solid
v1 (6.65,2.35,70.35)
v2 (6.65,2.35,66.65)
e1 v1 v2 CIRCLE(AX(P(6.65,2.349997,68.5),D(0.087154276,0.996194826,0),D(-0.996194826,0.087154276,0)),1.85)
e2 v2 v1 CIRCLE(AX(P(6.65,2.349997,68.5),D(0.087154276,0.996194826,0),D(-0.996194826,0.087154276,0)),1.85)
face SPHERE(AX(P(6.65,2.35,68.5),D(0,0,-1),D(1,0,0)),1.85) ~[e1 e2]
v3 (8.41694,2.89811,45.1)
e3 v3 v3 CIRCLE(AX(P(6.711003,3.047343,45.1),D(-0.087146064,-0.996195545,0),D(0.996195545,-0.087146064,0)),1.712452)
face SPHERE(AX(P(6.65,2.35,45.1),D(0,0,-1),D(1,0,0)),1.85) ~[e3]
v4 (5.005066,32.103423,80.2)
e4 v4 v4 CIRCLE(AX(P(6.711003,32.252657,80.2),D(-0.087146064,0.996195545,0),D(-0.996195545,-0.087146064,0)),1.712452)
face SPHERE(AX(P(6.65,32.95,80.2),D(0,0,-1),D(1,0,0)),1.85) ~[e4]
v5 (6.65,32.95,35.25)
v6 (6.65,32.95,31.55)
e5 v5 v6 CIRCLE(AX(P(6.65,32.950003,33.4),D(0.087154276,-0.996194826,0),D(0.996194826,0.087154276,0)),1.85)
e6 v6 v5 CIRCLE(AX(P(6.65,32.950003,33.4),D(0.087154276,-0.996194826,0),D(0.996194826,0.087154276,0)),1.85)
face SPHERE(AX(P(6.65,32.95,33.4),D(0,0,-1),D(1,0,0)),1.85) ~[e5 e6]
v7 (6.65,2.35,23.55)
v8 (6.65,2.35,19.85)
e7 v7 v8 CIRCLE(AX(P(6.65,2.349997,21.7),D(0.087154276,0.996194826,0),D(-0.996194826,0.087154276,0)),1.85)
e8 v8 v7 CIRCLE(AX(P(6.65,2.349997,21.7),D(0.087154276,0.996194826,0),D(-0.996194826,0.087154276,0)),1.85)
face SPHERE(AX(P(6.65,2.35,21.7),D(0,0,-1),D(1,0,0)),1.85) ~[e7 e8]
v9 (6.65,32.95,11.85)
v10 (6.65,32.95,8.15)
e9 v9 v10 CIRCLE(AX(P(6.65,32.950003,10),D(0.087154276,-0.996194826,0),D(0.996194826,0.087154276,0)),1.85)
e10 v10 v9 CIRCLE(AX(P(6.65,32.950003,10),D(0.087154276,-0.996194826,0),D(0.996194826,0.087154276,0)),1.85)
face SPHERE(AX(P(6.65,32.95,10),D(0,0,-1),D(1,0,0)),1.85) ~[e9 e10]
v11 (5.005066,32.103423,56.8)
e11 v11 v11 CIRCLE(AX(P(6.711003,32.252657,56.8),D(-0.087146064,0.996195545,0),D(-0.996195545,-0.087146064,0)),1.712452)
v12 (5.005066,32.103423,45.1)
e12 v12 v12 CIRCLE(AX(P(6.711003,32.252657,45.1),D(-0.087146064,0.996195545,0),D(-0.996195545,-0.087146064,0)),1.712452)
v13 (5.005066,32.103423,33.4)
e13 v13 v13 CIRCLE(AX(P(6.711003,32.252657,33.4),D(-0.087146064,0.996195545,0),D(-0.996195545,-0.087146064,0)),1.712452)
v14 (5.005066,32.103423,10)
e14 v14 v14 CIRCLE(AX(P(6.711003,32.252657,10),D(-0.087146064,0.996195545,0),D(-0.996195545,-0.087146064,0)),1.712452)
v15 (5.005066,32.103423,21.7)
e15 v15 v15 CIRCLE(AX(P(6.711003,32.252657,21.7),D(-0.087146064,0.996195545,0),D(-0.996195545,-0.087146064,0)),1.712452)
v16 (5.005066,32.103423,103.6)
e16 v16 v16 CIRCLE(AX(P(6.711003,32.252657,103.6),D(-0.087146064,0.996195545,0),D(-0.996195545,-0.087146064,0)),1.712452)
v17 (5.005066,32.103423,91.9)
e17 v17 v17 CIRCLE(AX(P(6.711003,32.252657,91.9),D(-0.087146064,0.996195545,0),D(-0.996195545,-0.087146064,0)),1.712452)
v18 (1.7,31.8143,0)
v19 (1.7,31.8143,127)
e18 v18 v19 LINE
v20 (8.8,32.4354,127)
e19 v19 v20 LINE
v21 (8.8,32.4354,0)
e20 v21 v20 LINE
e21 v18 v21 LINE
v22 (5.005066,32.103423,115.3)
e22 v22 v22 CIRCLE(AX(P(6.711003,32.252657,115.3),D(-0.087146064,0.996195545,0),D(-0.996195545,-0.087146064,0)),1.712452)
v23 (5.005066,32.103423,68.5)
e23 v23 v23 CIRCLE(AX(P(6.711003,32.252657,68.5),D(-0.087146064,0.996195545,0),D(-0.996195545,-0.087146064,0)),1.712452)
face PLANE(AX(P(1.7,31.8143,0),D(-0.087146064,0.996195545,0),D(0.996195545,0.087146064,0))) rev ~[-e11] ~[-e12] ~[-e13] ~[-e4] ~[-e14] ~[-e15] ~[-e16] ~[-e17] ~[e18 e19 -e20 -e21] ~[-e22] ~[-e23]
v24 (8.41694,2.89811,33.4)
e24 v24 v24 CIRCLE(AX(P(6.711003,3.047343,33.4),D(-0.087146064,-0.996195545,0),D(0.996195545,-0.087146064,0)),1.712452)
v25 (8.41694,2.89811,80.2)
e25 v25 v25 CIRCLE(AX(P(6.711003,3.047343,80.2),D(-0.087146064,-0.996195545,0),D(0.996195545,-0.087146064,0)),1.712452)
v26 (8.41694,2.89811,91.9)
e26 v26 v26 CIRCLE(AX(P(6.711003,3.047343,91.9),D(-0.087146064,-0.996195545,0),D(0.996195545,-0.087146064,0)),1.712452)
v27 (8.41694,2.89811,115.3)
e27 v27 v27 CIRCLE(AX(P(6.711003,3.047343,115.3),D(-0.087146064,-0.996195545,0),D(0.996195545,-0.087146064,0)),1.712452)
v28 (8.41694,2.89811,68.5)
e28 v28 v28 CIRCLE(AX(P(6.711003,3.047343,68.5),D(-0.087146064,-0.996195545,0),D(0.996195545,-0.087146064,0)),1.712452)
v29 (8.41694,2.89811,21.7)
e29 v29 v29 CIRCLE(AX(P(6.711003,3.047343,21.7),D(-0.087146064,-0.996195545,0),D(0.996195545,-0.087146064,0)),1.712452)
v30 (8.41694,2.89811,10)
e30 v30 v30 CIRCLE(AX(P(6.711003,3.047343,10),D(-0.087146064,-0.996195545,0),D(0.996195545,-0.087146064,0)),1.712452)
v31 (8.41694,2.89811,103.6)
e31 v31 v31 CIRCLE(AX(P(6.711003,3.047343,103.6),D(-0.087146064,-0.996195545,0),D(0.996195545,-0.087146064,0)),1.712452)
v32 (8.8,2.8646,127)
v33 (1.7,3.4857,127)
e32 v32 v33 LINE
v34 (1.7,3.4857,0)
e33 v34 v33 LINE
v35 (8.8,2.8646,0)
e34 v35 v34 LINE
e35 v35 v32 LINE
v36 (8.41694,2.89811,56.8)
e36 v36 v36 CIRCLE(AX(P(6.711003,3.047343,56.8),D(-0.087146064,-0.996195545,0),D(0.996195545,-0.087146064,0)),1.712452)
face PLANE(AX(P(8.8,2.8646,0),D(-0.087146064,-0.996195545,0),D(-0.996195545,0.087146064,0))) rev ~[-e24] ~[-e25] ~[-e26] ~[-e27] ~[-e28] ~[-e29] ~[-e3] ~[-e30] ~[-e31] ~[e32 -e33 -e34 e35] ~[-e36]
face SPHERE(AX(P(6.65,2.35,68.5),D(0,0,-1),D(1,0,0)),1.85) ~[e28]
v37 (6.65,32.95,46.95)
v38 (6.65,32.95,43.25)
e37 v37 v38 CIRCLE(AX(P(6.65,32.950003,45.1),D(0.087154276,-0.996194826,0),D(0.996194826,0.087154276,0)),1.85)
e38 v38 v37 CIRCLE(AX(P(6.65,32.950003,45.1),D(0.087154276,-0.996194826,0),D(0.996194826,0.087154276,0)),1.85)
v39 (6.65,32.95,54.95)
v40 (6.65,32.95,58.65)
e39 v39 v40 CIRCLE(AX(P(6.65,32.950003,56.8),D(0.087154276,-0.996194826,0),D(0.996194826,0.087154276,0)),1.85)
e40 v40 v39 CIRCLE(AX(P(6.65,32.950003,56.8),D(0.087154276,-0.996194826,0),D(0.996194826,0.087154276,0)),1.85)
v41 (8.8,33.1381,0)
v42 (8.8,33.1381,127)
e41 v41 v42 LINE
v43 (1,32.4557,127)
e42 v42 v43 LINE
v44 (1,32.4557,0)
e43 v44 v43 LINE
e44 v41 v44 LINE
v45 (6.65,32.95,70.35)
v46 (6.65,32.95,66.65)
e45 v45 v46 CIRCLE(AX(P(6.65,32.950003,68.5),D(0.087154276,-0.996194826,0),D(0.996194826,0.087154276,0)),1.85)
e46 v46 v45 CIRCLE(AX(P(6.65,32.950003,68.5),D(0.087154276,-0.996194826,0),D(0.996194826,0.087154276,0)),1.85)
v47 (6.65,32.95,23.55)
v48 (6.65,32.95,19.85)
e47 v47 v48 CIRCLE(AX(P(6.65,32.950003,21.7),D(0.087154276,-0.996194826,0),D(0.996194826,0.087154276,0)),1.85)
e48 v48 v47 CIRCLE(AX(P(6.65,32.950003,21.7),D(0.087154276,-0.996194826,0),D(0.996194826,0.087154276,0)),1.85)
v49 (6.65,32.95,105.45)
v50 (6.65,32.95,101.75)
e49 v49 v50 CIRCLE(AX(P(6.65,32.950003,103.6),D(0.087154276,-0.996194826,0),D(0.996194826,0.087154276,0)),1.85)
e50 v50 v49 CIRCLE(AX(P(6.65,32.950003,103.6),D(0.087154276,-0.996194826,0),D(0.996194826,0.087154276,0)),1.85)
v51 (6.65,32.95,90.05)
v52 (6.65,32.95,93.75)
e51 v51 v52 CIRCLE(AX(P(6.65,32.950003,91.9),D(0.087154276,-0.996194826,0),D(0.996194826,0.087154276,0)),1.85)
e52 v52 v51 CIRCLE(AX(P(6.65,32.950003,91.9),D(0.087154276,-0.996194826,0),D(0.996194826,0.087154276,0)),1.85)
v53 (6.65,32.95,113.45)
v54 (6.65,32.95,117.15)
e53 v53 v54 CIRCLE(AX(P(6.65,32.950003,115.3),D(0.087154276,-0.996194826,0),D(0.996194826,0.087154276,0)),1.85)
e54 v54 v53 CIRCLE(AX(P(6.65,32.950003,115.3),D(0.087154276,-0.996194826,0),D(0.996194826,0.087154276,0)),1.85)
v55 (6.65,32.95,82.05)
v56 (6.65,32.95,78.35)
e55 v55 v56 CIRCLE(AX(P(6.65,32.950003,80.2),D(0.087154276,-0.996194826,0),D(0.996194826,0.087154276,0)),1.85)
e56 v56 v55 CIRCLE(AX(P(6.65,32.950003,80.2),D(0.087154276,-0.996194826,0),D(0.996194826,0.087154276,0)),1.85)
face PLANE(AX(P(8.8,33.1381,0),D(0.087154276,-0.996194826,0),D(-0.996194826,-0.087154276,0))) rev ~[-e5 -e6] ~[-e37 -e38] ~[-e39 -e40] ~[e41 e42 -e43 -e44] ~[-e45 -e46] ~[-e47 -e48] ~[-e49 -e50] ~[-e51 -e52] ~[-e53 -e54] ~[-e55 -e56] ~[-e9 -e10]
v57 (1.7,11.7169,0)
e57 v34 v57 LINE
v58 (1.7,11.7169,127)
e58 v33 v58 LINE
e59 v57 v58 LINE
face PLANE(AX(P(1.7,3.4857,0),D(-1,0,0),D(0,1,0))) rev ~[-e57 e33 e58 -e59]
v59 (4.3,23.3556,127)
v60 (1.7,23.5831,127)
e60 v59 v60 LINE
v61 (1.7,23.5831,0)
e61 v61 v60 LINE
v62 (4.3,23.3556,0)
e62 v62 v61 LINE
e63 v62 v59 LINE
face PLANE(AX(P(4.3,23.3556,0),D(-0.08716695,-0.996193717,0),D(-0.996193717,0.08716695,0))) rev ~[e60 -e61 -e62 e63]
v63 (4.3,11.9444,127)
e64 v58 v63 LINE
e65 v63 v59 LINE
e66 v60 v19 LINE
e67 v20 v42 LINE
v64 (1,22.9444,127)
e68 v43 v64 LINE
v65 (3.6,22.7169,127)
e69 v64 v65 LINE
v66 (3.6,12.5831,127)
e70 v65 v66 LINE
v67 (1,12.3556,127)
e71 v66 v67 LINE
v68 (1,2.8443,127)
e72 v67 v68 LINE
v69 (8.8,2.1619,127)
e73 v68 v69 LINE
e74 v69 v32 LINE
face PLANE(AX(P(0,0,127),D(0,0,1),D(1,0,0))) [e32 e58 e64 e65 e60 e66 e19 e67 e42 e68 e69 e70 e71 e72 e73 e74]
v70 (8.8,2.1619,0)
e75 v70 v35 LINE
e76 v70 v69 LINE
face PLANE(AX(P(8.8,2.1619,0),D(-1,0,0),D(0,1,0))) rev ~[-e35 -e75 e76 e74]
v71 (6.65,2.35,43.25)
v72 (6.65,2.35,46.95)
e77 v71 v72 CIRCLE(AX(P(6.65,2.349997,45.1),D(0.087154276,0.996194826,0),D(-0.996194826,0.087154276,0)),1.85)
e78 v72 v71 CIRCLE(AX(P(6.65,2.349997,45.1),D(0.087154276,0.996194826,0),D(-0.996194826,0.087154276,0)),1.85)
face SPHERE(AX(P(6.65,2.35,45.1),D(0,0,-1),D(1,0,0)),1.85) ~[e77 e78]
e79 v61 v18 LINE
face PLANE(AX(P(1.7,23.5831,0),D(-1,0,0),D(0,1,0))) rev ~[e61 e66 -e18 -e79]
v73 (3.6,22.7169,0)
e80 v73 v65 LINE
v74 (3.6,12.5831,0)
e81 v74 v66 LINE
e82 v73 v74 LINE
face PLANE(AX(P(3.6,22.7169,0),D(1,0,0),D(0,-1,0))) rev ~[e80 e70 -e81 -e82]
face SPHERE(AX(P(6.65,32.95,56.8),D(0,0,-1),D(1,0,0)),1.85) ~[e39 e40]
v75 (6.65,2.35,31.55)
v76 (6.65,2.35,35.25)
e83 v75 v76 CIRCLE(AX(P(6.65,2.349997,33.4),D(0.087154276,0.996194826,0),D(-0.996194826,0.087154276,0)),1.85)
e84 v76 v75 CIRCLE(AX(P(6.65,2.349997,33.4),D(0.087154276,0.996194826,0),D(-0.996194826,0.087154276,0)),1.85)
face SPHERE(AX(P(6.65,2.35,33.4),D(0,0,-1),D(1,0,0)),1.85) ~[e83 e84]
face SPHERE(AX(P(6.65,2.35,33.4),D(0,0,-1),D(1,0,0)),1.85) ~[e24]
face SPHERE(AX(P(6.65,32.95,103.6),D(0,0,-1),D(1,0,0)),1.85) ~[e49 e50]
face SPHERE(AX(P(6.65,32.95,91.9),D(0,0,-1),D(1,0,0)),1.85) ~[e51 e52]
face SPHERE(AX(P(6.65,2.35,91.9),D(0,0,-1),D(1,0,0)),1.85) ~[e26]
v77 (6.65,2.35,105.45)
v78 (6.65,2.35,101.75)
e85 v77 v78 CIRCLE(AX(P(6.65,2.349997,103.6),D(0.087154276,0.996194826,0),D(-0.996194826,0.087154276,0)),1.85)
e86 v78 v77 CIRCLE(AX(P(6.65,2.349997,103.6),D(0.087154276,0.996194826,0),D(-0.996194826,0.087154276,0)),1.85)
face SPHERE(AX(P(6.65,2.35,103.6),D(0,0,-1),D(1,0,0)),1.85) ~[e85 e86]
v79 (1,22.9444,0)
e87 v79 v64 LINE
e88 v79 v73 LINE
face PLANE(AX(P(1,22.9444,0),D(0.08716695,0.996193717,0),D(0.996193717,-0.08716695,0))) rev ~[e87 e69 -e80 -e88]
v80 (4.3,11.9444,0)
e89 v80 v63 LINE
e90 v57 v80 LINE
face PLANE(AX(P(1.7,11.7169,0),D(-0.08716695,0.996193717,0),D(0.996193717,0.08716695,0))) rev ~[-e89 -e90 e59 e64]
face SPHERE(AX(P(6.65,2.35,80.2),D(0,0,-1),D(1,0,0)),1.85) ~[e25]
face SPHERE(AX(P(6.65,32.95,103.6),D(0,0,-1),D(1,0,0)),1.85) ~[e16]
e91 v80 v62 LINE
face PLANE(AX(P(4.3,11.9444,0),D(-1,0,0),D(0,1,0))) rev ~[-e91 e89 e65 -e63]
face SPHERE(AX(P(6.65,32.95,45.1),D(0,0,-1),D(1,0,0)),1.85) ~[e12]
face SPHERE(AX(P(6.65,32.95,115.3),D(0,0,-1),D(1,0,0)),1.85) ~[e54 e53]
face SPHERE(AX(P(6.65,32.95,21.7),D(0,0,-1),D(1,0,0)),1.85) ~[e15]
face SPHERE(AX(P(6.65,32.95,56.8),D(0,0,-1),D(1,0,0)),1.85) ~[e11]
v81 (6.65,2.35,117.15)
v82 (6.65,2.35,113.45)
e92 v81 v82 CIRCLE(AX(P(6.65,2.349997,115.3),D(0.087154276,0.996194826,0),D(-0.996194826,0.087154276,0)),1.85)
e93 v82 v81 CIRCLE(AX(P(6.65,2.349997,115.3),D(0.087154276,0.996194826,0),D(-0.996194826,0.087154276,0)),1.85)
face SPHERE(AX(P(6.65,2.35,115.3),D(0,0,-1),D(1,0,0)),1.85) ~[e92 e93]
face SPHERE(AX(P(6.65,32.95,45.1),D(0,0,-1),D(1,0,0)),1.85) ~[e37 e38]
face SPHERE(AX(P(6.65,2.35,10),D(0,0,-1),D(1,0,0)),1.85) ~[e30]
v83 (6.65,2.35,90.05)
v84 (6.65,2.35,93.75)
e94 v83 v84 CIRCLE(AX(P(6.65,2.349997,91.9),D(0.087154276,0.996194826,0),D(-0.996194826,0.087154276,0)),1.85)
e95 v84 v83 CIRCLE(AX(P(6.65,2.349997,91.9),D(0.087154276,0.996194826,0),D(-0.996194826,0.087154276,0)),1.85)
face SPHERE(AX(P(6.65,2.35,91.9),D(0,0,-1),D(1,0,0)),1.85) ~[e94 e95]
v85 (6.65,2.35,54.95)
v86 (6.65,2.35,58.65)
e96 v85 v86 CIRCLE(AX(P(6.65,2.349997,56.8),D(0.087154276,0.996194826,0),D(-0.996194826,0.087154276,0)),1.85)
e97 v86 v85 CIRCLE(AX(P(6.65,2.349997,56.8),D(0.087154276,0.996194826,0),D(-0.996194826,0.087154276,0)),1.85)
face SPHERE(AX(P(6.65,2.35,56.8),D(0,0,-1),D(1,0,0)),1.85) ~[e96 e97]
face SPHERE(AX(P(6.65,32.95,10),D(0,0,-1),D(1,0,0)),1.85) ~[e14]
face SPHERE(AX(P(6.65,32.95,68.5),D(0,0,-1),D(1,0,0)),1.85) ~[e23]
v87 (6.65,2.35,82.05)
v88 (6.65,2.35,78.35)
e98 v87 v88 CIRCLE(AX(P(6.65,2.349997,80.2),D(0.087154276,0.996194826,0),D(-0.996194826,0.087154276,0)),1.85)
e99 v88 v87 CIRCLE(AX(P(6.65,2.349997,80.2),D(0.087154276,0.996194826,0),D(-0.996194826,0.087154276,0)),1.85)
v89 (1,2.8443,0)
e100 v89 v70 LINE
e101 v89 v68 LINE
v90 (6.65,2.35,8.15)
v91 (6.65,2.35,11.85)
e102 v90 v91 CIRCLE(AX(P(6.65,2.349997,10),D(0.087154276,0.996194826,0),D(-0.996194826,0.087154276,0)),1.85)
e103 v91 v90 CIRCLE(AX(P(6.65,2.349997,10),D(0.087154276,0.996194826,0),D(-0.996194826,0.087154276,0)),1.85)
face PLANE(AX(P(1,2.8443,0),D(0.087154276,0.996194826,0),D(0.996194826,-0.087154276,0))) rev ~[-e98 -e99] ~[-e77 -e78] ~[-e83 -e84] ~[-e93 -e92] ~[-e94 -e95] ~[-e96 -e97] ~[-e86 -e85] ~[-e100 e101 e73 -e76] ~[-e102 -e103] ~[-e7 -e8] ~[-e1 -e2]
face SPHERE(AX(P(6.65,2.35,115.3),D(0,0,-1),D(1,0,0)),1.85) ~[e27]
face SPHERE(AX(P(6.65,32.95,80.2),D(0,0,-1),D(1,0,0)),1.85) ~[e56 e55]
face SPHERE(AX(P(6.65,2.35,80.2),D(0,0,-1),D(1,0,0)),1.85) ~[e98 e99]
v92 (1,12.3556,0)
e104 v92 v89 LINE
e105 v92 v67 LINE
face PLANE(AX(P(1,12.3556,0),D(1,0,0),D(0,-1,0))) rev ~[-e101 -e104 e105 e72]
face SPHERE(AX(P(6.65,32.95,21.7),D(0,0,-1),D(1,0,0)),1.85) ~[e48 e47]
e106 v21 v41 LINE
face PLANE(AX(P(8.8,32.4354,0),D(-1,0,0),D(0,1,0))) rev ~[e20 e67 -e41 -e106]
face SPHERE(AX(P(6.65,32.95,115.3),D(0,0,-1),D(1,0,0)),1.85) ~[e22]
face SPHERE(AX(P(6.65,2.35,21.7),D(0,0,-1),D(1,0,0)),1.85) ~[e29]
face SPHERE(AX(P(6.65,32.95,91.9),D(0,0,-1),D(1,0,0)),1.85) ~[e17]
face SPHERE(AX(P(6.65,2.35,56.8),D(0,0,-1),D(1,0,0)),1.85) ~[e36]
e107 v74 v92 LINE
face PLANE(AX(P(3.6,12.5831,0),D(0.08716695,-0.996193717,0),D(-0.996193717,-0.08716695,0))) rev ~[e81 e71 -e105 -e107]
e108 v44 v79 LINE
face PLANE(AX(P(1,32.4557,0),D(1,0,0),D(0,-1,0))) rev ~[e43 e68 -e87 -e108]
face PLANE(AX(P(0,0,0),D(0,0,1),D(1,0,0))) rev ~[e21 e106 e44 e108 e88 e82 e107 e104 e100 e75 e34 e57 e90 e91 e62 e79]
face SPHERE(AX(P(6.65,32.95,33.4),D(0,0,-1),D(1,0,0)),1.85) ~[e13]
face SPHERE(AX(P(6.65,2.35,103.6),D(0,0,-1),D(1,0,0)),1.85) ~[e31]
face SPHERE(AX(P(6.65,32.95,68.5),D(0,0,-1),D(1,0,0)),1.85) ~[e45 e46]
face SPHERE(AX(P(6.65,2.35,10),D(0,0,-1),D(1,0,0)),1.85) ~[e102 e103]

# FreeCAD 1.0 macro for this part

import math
import FreeCAD as App
import Part
import Sketcher

V = App.Vector
Q = App.Units.Quantity


def add_polygon(sketch, points):
    """Adds a closed chain of lines whose ends are joined by coincident constraints."""
    first, n = sketch.GeometryCount, len(points)
    for a, b in zip(points, points[1:] + points[:1]):
        sketch.addGeometry(Part.LineSegment(App.Vector(*a, 0), App.Vector(*b, 0)), False)
    for i in range(n):
        sketch.addConstraint(Sketcher.Constraint("Coincident", first + i, 2, first + (i + 1) % n, 1))

doc = App.newDocument("Part")
params = doc.addObject("Spreadsheet::Sheet", "Params")
for row, (alias, value) in enumerate([
    ("pad1_length", "127 mm"),
    ("sketch2_radius", "1.85 mm"),
    ("revolution_angle", "360 deg"),
    ("linearpattern_pitch", "11.7 mm"),
    ("sketch3_radius", "1.85 mm"),
    ("revolution2_angle", "360 deg"),
    ("linearpattern2_pitch", "11.7 mm"),
], start=1):
    params.set(f"A{row}", alias)
    params.set(f"B{row}", "=" + value)
    params.setAlias(f"B{row}", alias)

body = doc.addObject("PartDesign::Body", "Body")

sketch1 = body.newObject("Sketcher::SketchObject", "Sketch")
sketch1.AttachmentSupport = (doc.getObject("XY_Plane"), [""])
sketch1.MapMode = "FlatFace"
add_polygon(sketch1, [(1, 12.4), (1, 2.8), (8.8, 2.2), (8.8, 2.9), (1.7, 3.5), (1.7, 11.7), (4.3, 11.9), (4.3, 23.4), (1.7, 23.6), (1.7, 31.8), (8.8, 32.4), (8.8, 33.1), (1, 32.5), (1, 22.9), (3.6, 22.7), (3.6, 12.6)])
sketch1.addConstraint([
    Sketcher.Constraint("Vertical", 0),
    Sketcher.Constraint("Vertical", 2),
    Sketcher.Constraint("Vertical", 4),
    Sketcher.Constraint("Vertical", 6),
    Sketcher.Constraint("Vertical", 8),
    Sketcher.Constraint("Vertical", 10),
    Sketcher.Constraint("Vertical", 12),
    Sketcher.Constraint("Vertical", 14),
    Sketcher.Constraint("Parallel", 1, 3),
    Sketcher.Constraint("Parallel", 3, 7),
    Sketcher.Constraint("Parallel", 5, 9),
    Sketcher.Constraint("Parallel", 9, 11),
    Sketcher.Constraint("Parallel", 7, 13),
    Sketcher.Constraint("Parallel", 11, 15),
    Sketcher.Constraint("Vertical", 4, 2, 7, 2),
    Sketcher.Constraint("Vertical", 2, 2, 9, 2),
    Sketcher.Constraint("Vertical", 0, 2, 11, 2),
    Sketcher.Constraint("Equal", 4, 8),
    Sketcher.Constraint("Equal", 2, 10),
    Sketcher.Constraint("Equal", 0, 12),
    Sketcher.Constraint("Equal", 5, 7),
    Sketcher.Constraint("Equal", 7, 13),
    Sketcher.Constraint("Angle", 1, Q("-5 deg")),
    Sketcher.Constraint("DistanceX", -1, 1, 0, 2, 1.0),
    Sketcher.Constraint("DistanceX", -1, 1, 1, 2, 8.8),
    Sketcher.Constraint("DistanceX", -1, 1, 3, 2, 1.7),
    Sketcher.Constraint("DistanceX", -1, 1, 5, 2, 4.3),
    Sketcher.Constraint("DistanceY", 0, 2, 5, 2, 9.1),
    Sketcher.Constraint("DistanceY", 3, 2, 6, 2, 19.87),
    Sketcher.Constraint("DistanceY", 12, 2, 8, 2, 8.87),
    Sketcher.Constraint("DistanceY", 0, 2, 0, 1, 9.5113),
    Sketcher.Constraint("DistanceY", -1, 1, 1, 2, 2.162),
])
pad1 = body.newObject("PartDesign::Pad", "Pad")
pad1.Profile = sketch1
pad1.setExpression("Length", "Params.pad1_length")

sketch2 = body.newObject("Sketcher::SketchObject", "Sketch001")
sketch2.AttachmentSupport = (doc.getObject("XZ_Plane"), [""])
sketch2.MapMode = "FlatFace"
sketch2.AttachmentOffset = App.Placement(V(0, 0, -2.35), App.Rotation())
sketch2.addGeometry([
    Part.LineSegment(V(6.7, 8.2, 0), V(6.7, 11.8, 0)),
    Part.ArcOfCircle(Part.Circle(V(6.7, 10, 0), V(0, 0, 1), 1.8), math.radians(-90), math.radians(90)),
], False)
sketch2.addGeometry(Part.LineSegment(V(6.7, 8.2, 0), V(6.7, 11.8, 0)), True)
sketch2.addConstraint([
    Sketcher.Constraint("Coincident", 0, 1, 1, 1),
    Sketcher.Constraint("Coincident", 1, 2, 0, 2),
    Sketcher.Constraint("Vertical", 0),
    Sketcher.Constraint("Vertical", 2),
    Sketcher.Constraint("Coincident", 2, 1, 0, 1),
    Sketcher.Constraint("Vertical", 1, 3, 0, 1),
    Sketcher.Constraint("Equal", 0, 2),
    Sketcher.Constraint("Radius", 1, 1.85),
    Sketcher.Constraint("DistanceY", -1, 1, 1, 3, 10.0),
    Sketcher.Constraint("DistanceX", -1, 1, 1, 3, 6.65),
])
sketch2.setExpression("Constraints[7]", "Params.sketch2_radius")
revolution = body.newObject("PartDesign::Revolution", "Revolution")
revolution.Profile = sketch2
revolution.ReferenceAxis = (sketch2, ["Axis0"])
revolution.setExpression("Angle", "Params.revolution_angle")
doc.recompute()

linearpattern = body.newObject("PartDesign::LinearPattern", "LinearPattern")
linearpattern.Originals = [revolution]
linearpattern.Direction = (doc.getObject("Z_Axis"), [""])
linearpattern.Mode = "offset"
linearpattern.setExpression("Offset", "Params.linearpattern_pitch")
linearpattern.Occurrences = 10
body.Tip = linearpattern

sketch3 = body.newObject("Sketcher::SketchObject", "Sketch002")
sketch3.AttachmentSupport = (doc.getObject("XZ_Plane"), [""])
sketch3.MapMode = "FlatFace"
sketch3.AttachmentOffset = App.Placement(V(0, 0, -32.95), App.Rotation())
sketch3.addGeometry([
    Part.LineSegment(V(6.7, 8.2, 0), V(6.7, 11.8, 0)),
    Part.ArcOfCircle(Part.Circle(V(6.7, 10, 0), V(0, 0, 1), 1.8), math.radians(-90), math.radians(90)),
], False)
sketch3.addGeometry(Part.LineSegment(V(6.7, 8.2, 0), V(6.7, 11.8, 0)), True)
sketch3.addConstraint([
    Sketcher.Constraint("Coincident", 0, 1, 1, 1),
    Sketcher.Constraint("Coincident", 1, 2, 0, 2),
    Sketcher.Constraint("Vertical", 0),
    Sketcher.Constraint("Vertical", 2),
    Sketcher.Constraint("Coincident", 2, 1, 0, 1),
    Sketcher.Constraint("Vertical", 1, 3, 0, 1),
    Sketcher.Constraint("Equal", 0, 2),
    Sketcher.Constraint("Radius", 1, 1.85),
    Sketcher.Constraint("DistanceY", -1, 1, 1, 3, 10.0),
    Sketcher.Constraint("DistanceX", -1, 1, 1, 3, 6.65),
])
sketch3.setExpression("Constraints[7]", "Params.sketch3_radius")
revolution2 = body.newObject("PartDesign::Revolution", "Revolution001")
revolution2.Profile = sketch3
revolution2.ReferenceAxis = (sketch3, ["Axis0"])
revolution2.setExpression("Angle", "Params.revolution2_angle")
doc.recompute()

linearpattern2 = body.newObject("PartDesign::LinearPattern", "LinearPattern001")
linearpattern2.Originals = [revolution2]
linearpattern2.Direction = (doc.getObject("Z_Axis"), [""])
linearpattern2.Mode = "offset"
linearpattern2.setExpression("Offset", "Params.linearpattern2_pitch")
linearpattern2.Occurrences = 10
body.Tip = linearpattern2

doc.recompute()
